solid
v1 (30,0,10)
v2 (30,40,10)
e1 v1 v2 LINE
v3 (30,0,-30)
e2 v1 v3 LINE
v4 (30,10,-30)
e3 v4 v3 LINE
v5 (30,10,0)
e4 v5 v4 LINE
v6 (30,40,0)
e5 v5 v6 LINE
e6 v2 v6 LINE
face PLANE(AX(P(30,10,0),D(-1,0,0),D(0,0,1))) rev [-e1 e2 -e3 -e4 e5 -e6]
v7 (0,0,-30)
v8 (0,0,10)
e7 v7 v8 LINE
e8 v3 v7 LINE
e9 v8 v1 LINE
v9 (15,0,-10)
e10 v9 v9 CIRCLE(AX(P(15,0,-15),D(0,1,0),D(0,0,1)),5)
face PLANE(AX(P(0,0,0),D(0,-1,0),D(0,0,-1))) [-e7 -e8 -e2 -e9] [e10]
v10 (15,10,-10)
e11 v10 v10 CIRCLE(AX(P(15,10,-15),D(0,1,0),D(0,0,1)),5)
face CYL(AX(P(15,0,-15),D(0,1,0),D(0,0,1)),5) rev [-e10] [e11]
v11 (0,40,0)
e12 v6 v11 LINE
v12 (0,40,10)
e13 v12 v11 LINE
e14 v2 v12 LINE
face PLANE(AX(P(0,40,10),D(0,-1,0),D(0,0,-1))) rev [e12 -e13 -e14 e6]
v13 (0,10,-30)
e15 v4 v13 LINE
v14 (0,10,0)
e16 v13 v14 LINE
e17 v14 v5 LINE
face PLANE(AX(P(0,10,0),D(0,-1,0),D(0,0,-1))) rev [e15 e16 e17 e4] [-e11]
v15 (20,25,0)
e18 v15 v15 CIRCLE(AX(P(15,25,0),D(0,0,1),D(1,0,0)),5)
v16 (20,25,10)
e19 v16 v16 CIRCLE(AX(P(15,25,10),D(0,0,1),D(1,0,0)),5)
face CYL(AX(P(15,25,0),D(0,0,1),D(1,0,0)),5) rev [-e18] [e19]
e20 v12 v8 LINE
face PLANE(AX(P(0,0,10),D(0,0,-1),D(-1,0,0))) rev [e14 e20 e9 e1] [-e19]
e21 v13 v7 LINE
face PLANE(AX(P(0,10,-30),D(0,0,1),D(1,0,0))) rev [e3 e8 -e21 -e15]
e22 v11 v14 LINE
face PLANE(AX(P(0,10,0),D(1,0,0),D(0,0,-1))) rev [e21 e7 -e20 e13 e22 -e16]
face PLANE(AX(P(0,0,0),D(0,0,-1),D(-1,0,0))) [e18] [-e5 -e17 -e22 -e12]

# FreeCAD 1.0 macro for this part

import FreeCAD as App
import Part
import Sketcher
from FreeCAD import Vector
Q = App.Units.Quantity

doc = App.newDocument("Part")
body = doc.addObject("PartDesign::Body", "Body")

# Sketch on XZ plane
sketch1 = body.newObject("Sketcher::SketchObject", "Sketch")
sketch1.AttachmentSupport = (doc.getObject("XZ_Plane"), [""])
sketch1.MapMode = "FlatFace"
sketch1.addGeometry([
    Part.LineSegment(Vector(0, -30, 0), Vector(0, 0, 0)),
    Part.LineSegment(Vector(0, 0, 0), Vector(30, 0, 0)),
    Part.LineSegment(Vector(30, 0, 0), Vector(30, -30, 0)),
    Part.LineSegment(Vector(30, -30, 0), Vector(0, -30, 0)),
], False)
sketch1.addConstraint([
    Sketcher.Constraint("Coincident", 0, 2, 1, 1),
    Sketcher.Constraint("Coincident", 1, 2, 2, 1),
    Sketcher.Constraint("Coincident", 2, 2, 3, 1),
    Sketcher.Constraint("Coincident", 3, 2, 0, 1),
    Sketcher.Constraint("Vertical", 0),
    Sketcher.Constraint("Horizontal", 1),
    Sketcher.Constraint("Vertical", 2),
    Sketcher.Constraint("Horizontal", 3),
    Sketcher.Constraint("Coincident", 0, 2, -1, 1),
    Sketcher.Constraint("Equal", 3, 0),
    Sketcher.Constraint("DistanceX", 1, 1, 1, 2, Q("30 mm")),
])
pad1 = body.newObject("PartDesign::Pad", "Pad")
pad1.Profile = sketch1
pad1.Length = 10
pad1.Reversed = True

# Sketch on XY plane
sketch2 = body.newObject("Sketcher::SketchObject", "Sketch001")
sketch2.AttachmentSupport = (doc.getObject("XY_Plane"), [""])
sketch2.MapMode = "FlatFace"
sketch2.addGeometry([
    Part.LineSegment(Vector(0, 40, 0), Vector(0, 0, 0)),
    Part.LineSegment(Vector(0, 0, 0), Vector(30, 0, 0)),
    Part.LineSegment(Vector(30, 0, 0), Vector(30, 40, 0)),
    Part.LineSegment(Vector(30, 40, 0), Vector(0, 40, 0)),
], False)
sketch2.addConstraint([
    Sketcher.Constraint("Coincident", 0, 2, 1, 1),
    Sketcher.Constraint("Coincident", 1, 2, 2, 1),
    Sketcher.Constraint("Coincident", 2, 2, 3, 1),
    Sketcher.Constraint("Coincident", 3, 2, 0, 1),
    Sketcher.Constraint("Vertical", 0),
    Sketcher.Constraint("Horizontal", 1),
    Sketcher.Constraint("Vertical", 2),
    Sketcher.Constraint("Horizontal", 3),
    Sketcher.Constraint("Coincident", 0, 2, -1, 1),
    Sketcher.Constraint("DistanceX", 1, 1, 1, 2, Q("30 mm")),
    Sketcher.Constraint("DistanceY", 0, 2, 0, 1, Q("40 mm")),
])
pad2 = body.newObject("PartDesign::Pad", "Pad001")
pad2.Profile = sketch2
pad2.Length = 10

# Sketch on XY plane
sketch3 = body.newObject("Sketcher::SketchObject", "Sketch002")
sketch3.AttachmentSupport = (doc.getObject("XY_Plane"), [""])
sketch3.MapMode = "FlatFace"
sketch3.AttachmentOffset = App.Placement(Vector(0, 0, 10), App.Rotation())
sketch3.addGeometry(Part.Circle(Vector(15, 25, 0), Vector(0, 0, 1), 5), False)
sketch3.addConstraint([
    Sketcher.Constraint("Diameter", 0, Q("10 mm")),
    Sketcher.Constraint("DistanceX", -1, 1, 0, 3, Q("15 mm")),
    Sketcher.Constraint("DistanceY", -1, 1, 0, 3, Q("25 mm")),
])
pocket1 = body.newObject("PartDesign::Pocket", "Pocket")
pocket1.Profile = sketch3
pocket1.Length = 10

# Sketch on XZ plane
sketch4 = body.newObject("Sketcher::SketchObject", "Sketch003")
sketch4.AttachmentSupport = (doc.getObject("XZ_Plane"), [""])
sketch4.MapMode = "FlatFace"
sketch4.AttachmentOffset = App.Placement(Vector(0, 0, -10), App.Rotation())
sketch4.addGeometry(Part.Circle(Vector(15, -15, 0), Vector(0, 0, 1), 5), False)
sketch4.addConstraint([
    Sketcher.Constraint("Diameter", 0, Q("10 mm")),
    Sketcher.Constraint("DistanceX", -1, 1, 0, 3, Q("15 mm")),
    Sketcher.Constraint("DistanceY", 0, 3, -1, 1, Q("15 mm")),
])
pocket2 = body.newObject("PartDesign::Pocket", "Pocket001")
pocket2.Profile = sketch4
pocket2.Length = 10
pocket2.Reversed = True

doc.recompute()
